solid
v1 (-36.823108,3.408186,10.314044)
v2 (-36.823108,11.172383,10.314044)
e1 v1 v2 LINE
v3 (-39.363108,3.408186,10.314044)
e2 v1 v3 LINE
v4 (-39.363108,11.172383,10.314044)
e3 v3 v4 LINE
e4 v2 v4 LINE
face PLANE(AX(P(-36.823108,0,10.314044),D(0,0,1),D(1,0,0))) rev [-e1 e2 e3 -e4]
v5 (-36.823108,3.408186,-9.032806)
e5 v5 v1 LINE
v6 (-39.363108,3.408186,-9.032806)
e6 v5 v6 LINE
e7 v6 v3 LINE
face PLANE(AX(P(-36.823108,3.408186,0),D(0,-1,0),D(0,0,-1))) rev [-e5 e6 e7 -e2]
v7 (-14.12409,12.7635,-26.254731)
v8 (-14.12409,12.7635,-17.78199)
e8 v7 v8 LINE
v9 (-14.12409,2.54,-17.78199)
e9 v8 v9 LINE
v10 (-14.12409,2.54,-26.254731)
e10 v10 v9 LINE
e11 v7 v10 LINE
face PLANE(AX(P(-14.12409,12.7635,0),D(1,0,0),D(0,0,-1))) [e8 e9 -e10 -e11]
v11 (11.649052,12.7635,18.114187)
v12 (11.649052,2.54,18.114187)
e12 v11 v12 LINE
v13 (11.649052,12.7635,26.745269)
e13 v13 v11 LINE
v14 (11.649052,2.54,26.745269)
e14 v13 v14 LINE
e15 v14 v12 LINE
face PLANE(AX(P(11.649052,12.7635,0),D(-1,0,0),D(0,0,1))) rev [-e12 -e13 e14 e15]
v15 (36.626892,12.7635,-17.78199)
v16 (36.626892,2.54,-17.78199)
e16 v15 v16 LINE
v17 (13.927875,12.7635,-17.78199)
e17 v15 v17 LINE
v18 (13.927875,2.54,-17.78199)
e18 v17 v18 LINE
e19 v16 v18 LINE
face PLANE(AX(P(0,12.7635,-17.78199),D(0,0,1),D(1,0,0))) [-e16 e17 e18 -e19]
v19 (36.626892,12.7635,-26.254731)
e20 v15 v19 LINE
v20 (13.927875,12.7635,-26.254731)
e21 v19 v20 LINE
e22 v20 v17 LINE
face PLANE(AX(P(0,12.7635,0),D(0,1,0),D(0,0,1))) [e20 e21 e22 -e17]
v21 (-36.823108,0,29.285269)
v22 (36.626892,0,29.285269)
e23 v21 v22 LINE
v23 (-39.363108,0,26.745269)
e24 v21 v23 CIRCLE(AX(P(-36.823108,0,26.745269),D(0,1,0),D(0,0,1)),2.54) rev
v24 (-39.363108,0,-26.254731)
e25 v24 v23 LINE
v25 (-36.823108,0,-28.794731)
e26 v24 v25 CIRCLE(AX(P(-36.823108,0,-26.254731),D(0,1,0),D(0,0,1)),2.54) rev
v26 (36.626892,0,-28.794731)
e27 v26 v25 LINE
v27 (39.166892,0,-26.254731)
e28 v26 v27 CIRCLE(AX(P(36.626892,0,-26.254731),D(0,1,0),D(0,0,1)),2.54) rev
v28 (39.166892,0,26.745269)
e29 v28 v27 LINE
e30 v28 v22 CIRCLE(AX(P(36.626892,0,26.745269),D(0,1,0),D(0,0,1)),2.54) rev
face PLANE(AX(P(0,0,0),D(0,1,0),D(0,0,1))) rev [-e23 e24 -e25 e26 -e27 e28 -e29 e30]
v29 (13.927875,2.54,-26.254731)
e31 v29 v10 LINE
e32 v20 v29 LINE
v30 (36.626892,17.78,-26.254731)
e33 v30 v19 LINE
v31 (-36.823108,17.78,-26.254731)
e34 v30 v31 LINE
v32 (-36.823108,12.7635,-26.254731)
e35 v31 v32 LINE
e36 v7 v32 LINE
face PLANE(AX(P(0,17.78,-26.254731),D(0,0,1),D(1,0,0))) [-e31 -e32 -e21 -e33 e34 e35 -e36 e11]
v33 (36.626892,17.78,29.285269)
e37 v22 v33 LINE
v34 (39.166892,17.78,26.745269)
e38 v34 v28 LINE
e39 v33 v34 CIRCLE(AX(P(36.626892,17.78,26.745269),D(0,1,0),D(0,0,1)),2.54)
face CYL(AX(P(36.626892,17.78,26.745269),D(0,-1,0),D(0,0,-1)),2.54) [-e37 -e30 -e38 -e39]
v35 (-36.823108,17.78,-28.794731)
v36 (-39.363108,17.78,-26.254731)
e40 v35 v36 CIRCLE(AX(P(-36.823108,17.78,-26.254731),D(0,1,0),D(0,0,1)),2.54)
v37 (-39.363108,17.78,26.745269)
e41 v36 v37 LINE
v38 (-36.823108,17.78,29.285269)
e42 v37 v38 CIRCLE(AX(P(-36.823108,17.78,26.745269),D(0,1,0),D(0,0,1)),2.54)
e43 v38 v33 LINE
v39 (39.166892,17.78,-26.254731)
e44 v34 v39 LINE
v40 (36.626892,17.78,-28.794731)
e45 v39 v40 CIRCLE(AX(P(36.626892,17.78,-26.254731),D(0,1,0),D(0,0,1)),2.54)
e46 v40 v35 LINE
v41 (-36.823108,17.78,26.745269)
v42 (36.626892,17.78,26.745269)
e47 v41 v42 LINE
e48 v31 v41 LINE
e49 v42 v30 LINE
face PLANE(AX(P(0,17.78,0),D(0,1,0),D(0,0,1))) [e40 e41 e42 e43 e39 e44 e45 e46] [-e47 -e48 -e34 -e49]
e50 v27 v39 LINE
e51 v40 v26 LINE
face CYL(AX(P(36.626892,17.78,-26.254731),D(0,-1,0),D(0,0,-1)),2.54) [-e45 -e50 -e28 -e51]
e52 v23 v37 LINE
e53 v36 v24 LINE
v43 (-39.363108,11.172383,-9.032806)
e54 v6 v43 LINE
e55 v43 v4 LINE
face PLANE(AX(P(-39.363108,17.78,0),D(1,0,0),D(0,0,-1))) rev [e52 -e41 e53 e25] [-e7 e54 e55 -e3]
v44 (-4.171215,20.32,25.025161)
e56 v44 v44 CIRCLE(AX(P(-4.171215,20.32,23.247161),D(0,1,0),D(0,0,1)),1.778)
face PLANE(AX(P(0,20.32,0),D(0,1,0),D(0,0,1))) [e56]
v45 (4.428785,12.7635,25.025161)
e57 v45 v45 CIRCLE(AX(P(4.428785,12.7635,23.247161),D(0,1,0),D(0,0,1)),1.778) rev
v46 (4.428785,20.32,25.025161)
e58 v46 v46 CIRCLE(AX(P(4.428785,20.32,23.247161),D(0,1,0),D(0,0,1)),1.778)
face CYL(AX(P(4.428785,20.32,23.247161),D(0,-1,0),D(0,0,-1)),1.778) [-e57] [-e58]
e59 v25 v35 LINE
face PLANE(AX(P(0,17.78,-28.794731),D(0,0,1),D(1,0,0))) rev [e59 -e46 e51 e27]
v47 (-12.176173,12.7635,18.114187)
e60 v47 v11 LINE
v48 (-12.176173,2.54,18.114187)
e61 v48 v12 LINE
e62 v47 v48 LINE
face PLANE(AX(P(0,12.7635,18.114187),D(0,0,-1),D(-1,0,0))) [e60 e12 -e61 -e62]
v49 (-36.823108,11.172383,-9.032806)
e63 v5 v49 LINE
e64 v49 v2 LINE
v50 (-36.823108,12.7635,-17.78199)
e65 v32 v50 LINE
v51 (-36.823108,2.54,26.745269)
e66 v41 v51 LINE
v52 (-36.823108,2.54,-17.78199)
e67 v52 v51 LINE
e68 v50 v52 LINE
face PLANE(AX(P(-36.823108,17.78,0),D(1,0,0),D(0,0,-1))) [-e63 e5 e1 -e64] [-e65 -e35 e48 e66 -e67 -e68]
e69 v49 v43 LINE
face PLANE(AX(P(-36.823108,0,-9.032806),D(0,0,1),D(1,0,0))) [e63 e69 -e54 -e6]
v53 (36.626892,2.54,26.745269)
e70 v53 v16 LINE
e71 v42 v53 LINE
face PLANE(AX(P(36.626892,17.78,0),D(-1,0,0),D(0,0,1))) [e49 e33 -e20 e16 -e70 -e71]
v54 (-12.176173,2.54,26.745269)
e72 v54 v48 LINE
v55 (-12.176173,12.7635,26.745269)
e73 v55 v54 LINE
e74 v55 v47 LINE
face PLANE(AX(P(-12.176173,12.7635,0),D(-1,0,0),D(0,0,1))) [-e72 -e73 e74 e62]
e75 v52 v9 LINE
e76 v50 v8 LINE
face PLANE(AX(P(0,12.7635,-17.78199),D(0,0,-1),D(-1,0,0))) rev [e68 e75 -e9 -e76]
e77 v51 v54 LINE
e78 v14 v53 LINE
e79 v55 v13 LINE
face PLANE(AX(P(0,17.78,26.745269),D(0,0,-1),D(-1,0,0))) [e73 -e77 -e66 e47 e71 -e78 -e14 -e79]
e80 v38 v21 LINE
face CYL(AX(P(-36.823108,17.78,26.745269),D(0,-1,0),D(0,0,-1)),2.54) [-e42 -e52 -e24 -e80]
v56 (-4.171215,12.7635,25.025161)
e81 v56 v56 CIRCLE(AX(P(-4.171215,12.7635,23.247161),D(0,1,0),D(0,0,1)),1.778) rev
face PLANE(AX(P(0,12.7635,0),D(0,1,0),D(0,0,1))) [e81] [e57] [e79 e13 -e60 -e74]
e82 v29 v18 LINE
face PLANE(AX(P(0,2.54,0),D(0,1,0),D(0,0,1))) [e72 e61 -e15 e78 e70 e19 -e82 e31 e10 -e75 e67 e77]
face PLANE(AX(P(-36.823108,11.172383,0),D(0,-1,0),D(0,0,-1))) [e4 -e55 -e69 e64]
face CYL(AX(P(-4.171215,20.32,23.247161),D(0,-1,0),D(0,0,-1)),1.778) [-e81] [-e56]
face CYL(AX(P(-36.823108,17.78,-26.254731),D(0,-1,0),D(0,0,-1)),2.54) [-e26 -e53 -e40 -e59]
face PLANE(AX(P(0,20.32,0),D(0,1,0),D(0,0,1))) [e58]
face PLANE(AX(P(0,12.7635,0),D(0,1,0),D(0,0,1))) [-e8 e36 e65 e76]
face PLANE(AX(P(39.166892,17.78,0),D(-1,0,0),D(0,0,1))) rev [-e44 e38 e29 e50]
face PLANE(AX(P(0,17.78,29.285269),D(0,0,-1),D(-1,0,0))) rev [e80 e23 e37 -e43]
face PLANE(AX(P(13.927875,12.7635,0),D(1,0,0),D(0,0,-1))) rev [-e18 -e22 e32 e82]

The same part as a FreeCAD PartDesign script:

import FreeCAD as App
import Part
import Sketcher

V = App.Vector
Q = App.Units.Quantity


def edges_at(feature, points):
    """Names of the edges that pass closest to the given points."""
    edges = feature.Shape.Edges
    near = lambda p: min(range(len(edges)), key=lambda i: edges[i].distToShape(Part.Vertex(*p))[0])
    return sorted({f"Edge{near(p) + 1}" for p in points})

doc = App.newDocument("Part")
body = doc.addObject("PartDesign::Body", "Body")

sketch1 = body.newObject("Sketcher::SketchObject", "Sketch")
sketch1.AttachmentSupport = (doc.getObject("XZ_Plane"), [""])
sketch1.MapMode = "FlatFace"
sketch1.addGeometry([
    Part.LineSegment(V(14, -18, 0), V(14, -26, 0)),
    Part.LineSegment(V(14, -26, 0), V(-14, -26, 0)),
    Part.LineSegment(V(-14, -26, 0), V(-14, -18, 0)),
    Part.LineSegment(V(-14, -18, 0), V(-37, -18, 0)),
    Part.LineSegment(V(-37, -18, 0), V(-37, 27, 0)),
    Part.LineSegment(V(-37, 27, 0), V(-12, 27, 0)),
    Part.LineSegment(V(-12, 27, 0), V(-12, 18, 0)),
    Part.LineSegment(V(-12, 18, 0), V(12, 18, 0)),
    Part.LineSegment(V(12, 18, 0), V(12, 27, 0)),
    Part.LineSegment(V(12, 27, 0), V(37, 27, 0)),
    Part.LineSegment(V(37, 27, 0), V(37, -18, 0)),
    Part.LineSegment(V(37, -18, 0), V(14, -18, 0)),
], False)
sketch1.addConstraint([
    Sketcher.Constraint("Coincident", 0, 2, 1, 1),
    Sketcher.Constraint("Coincident", 1, 2, 2, 1),
    Sketcher.Constraint("Coincident", 2, 2, 3, 1),
    Sketcher.Constraint("Coincident", 3, 2, 4, 1),
    Sketcher.Constraint("Coincident", 4, 2, 5, 1),
    Sketcher.Constraint("Coincident", 5, 2, 6, 1),
    Sketcher.Constraint("Coincident", 6, 2, 7, 1),
    Sketcher.Constraint("Coincident", 7, 2, 8, 1),
    Sketcher.Constraint("Coincident", 8, 2, 9, 1),
    Sketcher.Constraint("Coincident", 9, 2, 10, 1),
    Sketcher.Constraint("Coincident", 10, 2, 11, 1),
    Sketcher.Constraint("Coincident", 11, 2, 0, 1),
    Sketcher.Constraint("Vertical", 0),
    Sketcher.Constraint("Horizontal", 1),
    Sketcher.Constraint("Vertical", 2),
    Sketcher.Constraint("Horizontal", 3),
    Sketcher.Constraint("Vertical", 4),
    Sketcher.Constraint("Horizontal", 5),
    Sketcher.Constraint("Vertical", 6),
    Sketcher.Constraint("Horizontal", 7),
    Sketcher.Constraint("Vertical", 8),
    Sketcher.Constraint("Horizontal", 9),
    Sketcher.Constraint("Vertical", 10),
    Sketcher.Constraint("Horizontal", 11),
    Sketcher.Constraint("Horizontal", 5, 2, 8, 2),
    Sketcher.Constraint("Horizontal", 3, 2, 10, 2),
    Sketcher.Constraint("Equal", 3, 11),
    Sketcher.Constraint("DistanceX", 9, 1, 9, 2, 24.977841),
    Sketcher.Constraint("DistanceY", 0, 2, 0, 1, 8.47274),
    Sketcher.Constraint("DistanceY", 4, 1, 4, 2, 44.52726),
    Sketcher.Constraint("DistanceY", 6, 2, 6, 1, 8.631082),
    Sketcher.Constraint("DistanceX", 1, 2, 1, 1, 28.051965),
    Sketcher.Constraint("DistanceX", 3, 2, 3, 1, 22.699018),
    Sketcher.Constraint("DistanceX", 5, 1, 5, 2, 24.646935),
    Sketcher.Constraint("DistanceY", 0, 2, -1, 1, 26.254731),
    Sketcher.Constraint("DistanceX", 1, 2, -1, 1, 14.12409),
])
pad1 = body.newObject("PartDesign::Pad", "Pad")
pad1.Profile = sketch1
pad1.Length = Q("0.1 in")
pad1.Reversed = True

sketch2 = body.newObject("Sketcher::SketchObject", "Sketch001")
sketch2.AttachmentSupport = (doc.getObject("XZ_Plane"), [""])
sketch2.MapMode = "FlatFace"
sketch2.addGeometry([
    Part.LineSegment(V(-39, -29, 0), V(-39, 29, 0)),
    Part.LineSegment(V(-39, 29, 0), V(39, 29, 0)),
    Part.LineSegment(V(39, 29, 0), V(39, -29, 0)),
    Part.LineSegment(V(39, -29, 0), V(-39, -29, 0)),
    Part.LineSegment(V(37, 27, 0), V(-37, 27, 0)),
    Part.LineSegment(V(-37, 27, 0), V(-37, -26, 0)),
    Part.LineSegment(V(-37, -26, 0), V(37, -26, 0)),
    Part.LineSegment(V(37, -26, 0), V(37, 27, 0)),
], False)
sketch2.addConstraint([
    Sketcher.Constraint("Coincident", 0, 2, 1, 1),
    Sketcher.Constraint("Coincident", 1, 2, 2, 1),
    Sketcher.Constraint("Coincident", 2, 2, 3, 1),
    Sketcher.Constraint("Coincident", 3, 2, 0, 1),
    Sketcher.Constraint("Coincident", 4, 2, 5, 1),
    Sketcher.Constraint("Coincident", 5, 2, 6, 1),
    Sketcher.Constraint("Coincident", 6, 2, 7, 1),
    Sketcher.Constraint("Coincident", 7, 2, 4, 1),
    Sketcher.Constraint("Vertical", 0),
    Sketcher.Constraint("Horizontal", 1),
    Sketcher.Constraint("Vertical", 2),
    Sketcher.Constraint("Horizontal", 3),
    Sketcher.Constraint("Horizontal", 4),
    Sketcher.Constraint("Vertical", 5),
    Sketcher.Constraint("Horizontal", 6),
    Sketcher.Constraint("Vertical", 7),
    Sketcher.Constraint("DistanceX", 0, 2, 4, 2, Q("0.1 in")),
    Sketcher.Constraint("DistanceY", 4, 2, 0, 2, Q("0.1 in")),
    Sketcher.Constraint("DistanceY", 3, 2, 5, 2, Q("0.1 in")),
    Sketcher.Constraint("DistanceX", 6, 2, 2, 2, Q("0.1 in")),
    Sketcher.Constraint("DistanceX", 1, 1, 1, 2, 78.53),
    Sketcher.Constraint("DistanceY", 0, 1, 0, 2, 58.08),
    Sketcher.Constraint("DistanceY", -1, 1, 0, 2, 29.285269),
    Sketcher.Constraint("DistanceX", 0, 2, -1, 1, 39.363108),
])
pad2 = body.newObject("PartDesign::Pad", "Pad001")
pad2.Profile = sketch2
pad2.Length = Q("0.7 in")
pad2.Reversed = True
body2 = doc.addObject("PartDesign::Body", "Body001")

sketch3 = body2.newObject("Sketcher::SketchObject", "Sketch002")
sketch3.AttachmentSupport = (doc.getObject("XZ_Plane001"), [""])
sketch3.MapMode = "FlatFace"
sketch3.addGeometry(Part.Circle(V(-4.2, 23.2, 0), V(0, 0, 1), 1.8), False)
sketch3.addConstraint([
    Sketcher.Constraint("Diameter", 0, Q("0.14 in")),
    Sketcher.Constraint("DistanceY", -1, 1, 0, 3, 23.247161),
    Sketcher.Constraint("DistanceX", 0, 3, -1, 1, 4.171215),
])
pad3 = body2.newObject("PartDesign::Pad", "Pad002")
pad3.Profile = sketch3
pad3.Length = Q("0.8 in")
pad3.Reversed = True
body3 = doc.addObject("PartDesign::Body", "Body002")

sketch4 = body3.newObject("Sketcher::SketchObject", "Sketch003")
sketch4.AttachmentSupport = (doc.getObject("XZ_Plane002"), [""])
sketch4.MapMode = "FlatFace"
sketch4.addGeometry(Part.Circle(V(4.4, 23.2, 0), V(0, 0, 1), 1.8), False)
sketch4.addConstraint([
    Sketcher.Constraint("Diameter", 0, Q("0.14 in")),
    Sketcher.Constraint("DistanceY", -1, 1, 0, 3, 23.247161),
    Sketcher.Constraint("DistanceX", -1, 1, 0, 3, 4.428785),
])
pad4 = body3.newObject("PartDesign::Pad", "Pad003")
pad4.Profile = sketch4
pad4.Length = Q("0.8 in")
pad4.Reversed = True
body.AllowCompound = True
doc.recompute()

boolean = body.newObject("PartDesign::Boolean", "Boolean")
boolean.Type = "Fuse"
boolean.addObjects([body2])
doc.recompute()

boolean2 = body.newObject("PartDesign::Boolean", "Boolean001")
boolean2.Type = "Fuse"
boolean2.addObjects([body3])

sketch5 = body.newObject("Sketcher::SketchObject", "Sketch004")
sketch5.AttachmentSupport = (doc.getObject("XZ_Plane"), [""])
sketch5.MapMode = "FlatFace"
sketch5.addGeometry([
    Part.LineSegment(V(13.9, -26.3, 0), V(13.9, -17.8, 0)),
    Part.LineSegment(V(13.9, -17.8, 0), V(36.6, -17.8, 0)),
    Part.LineSegment(V(36.6, -17.8, 0), V(36.6, -26.3, 0)),
    Part.LineSegment(V(36.6, -26.3, 0), V(13.9, -26.3, 0)),
    Part.LineSegment(V(-36.8, -26.3, 0), V(-36.8, -17.8, 0)),
    Part.LineSegment(V(-36.8, -17.8, 0), V(-14.1, -17.8, 0)),
    Part.LineSegment(V(-14.1, -17.8, 0), V(-14.1, -26.3, 0)),
    Part.LineSegment(V(-14.1, -26.3, 0), V(-36.8, -26.3, 0)),
    Part.LineSegment(V(-12.2, 18.1, 0), V(-12.2, 26.7, 0)),
    Part.LineSegment(V(-12.2, 26.7, 0), V(11.6, 26.7, 0)),
    Part.LineSegment(V(11.6, 26.7, 0), V(11.6, 18.1, 0)),
    Part.LineSegment(V(11.6, 18.1, 0), V(-12.2, 18.1, 0)),
    Part.Circle(V(-4.2, 23.2, 0), V(0, 0, 1), 1.8),
    Part.Circle(V(4.4, 23.2, 0), V(0, 0, 1), 1.8),
], False)
sketch5.addConstraint([
    Sketcher.Constraint("Coincident", 0, 2, 1, 1),
    Sketcher.Constraint("Coincident", 1, 2, 2, 1),
    Sketcher.Constraint("Coincident", 2, 2, 3, 1),
    Sketcher.Constraint("Coincident", 3, 2, 0, 1),
    Sketcher.Constraint("Coincident", 4, 2, 5, 1),
    Sketcher.Constraint("Coincident", 5, 2, 6, 1),
    Sketcher.Constraint("Coincident", 6, 2, 7, 1),
    Sketcher.Constraint("Coincident", 7, 2, 4, 1),
    Sketcher.Constraint("Coincident", 8, 2, 9, 1),
    Sketcher.Constraint("Coincident", 9, 2, 10, 1),
    Sketcher.Constraint("Coincident", 10, 2, 11, 1),
    Sketcher.Constraint("Coincident", 11, 2, 8, 1),
    Sketcher.Constraint("Vertical", 0),
    Sketcher.Constraint("Horizontal", 1),
    Sketcher.Constraint("Vertical", 2),
    Sketcher.Constraint("Horizontal", 3),
    Sketcher.Constraint("Vertical", 4),
    Sketcher.Constraint("Horizontal", 5),
    Sketcher.Constraint("Vertical", 6),
    Sketcher.Constraint("Horizontal", 7),
    Sketcher.Constraint("Vertical", 8),
    Sketcher.Constraint("Horizontal", 9),
    Sketcher.Constraint("Vertical", 10),
    Sketcher.Constraint("Horizontal", 11),
    Sketcher.Constraint("Equal", 12, 13),
    Sketcher.Constraint("Horizontal", 12, 3, 13, 3),
    Sketcher.Constraint("Horizontal", 1, 2, 4, 2),
    Sketcher.Constraint("Horizontal", 3, 2, 6, 2),
    Sketcher.Constraint("Equal", 3, 5),
    Sketcher.Constraint("Diameter", 12, Q("0.14 in")),
    Sketcher.Constraint("DistanceY", 0, 1, 0, 2, 8.47274),
    Sketcher.Constraint("DistanceY", 8, 1, 8, 2, 8.631082),
    Sketcher.Constraint("DistanceX", 12, 3, 13, 3, 8.6),
    Sketcher.Constraint("DistanceX", 4, 2, 1, 2, 73.45),
    Sketcher.Constraint("DistanceX", 1, 1, 1, 2, 22.699018),
    Sketcher.Constraint("DistanceX", 9, 1, 9, 2, 23.825224),
    Sketcher.Constraint("DistanceY", -1, 1, 12, 3, 23.247161),
    Sketcher.Constraint("DistanceY", 0, 2, -1, 1, 17.78199),
    Sketcher.Constraint("DistanceX", 5, 2, -1, 1, 14.12409),
    Sketcher.Constraint("DistanceY", -1, 1, 8, 2, 26.745269),
    Sketcher.Constraint("DistanceX", -1, 1, 9, 2, 11.649052),
    Sketcher.Constraint("DistanceX", 13, 3, 0, 2, 9.49909),
])
pad5 = body.newObject("PartDesign::Pad", "Pad004")
pad5.Profile = sketch5
pad5.Length = Q("0.5025 in")
pad5.Reversed = True

sketch6 = body.newObject("Sketcher::SketchObject", "Sketch005")
sketch6.AttachmentSupport = (doc.getObject("YZ_Plane"), [""])
sketch6.MapMode = "FlatFace"
sketch6.AttachmentOffset = App.Placement(V(0, 0, -39.363108), App.Rotation())
sketch6.addGeometry([
    Part.LineSegment(V(11, -9, 0), V(3, -9, 0)),
    Part.LineSegment(V(3, -9, 0), V(3, 10, 0)),
    Part.LineSegment(V(3, 10, 0), V(11, 10, 0)),
    Part.LineSegment(V(11, 10, 0), V(11, -9, 0)),
], False)
sketch6.addConstraint([
    Sketcher.Constraint("Coincident", 0, 2, 1, 1),
    Sketcher.Constraint("Coincident", 1, 2, 2, 1),
    Sketcher.Constraint("Coincident", 2, 2, 3, 1),
    Sketcher.Constraint("Coincident", 3, 2, 0, 1),
    Sketcher.Constraint("Horizontal", 0),
    Sketcher.Constraint("Vertical", 1),
    Sketcher.Constraint("Horizontal", 2),
    Sketcher.Constraint("Vertical", 3),
    Sketcher.Constraint("DistanceY", 1, 1, 1, 2, 19.346851),
    Sketcher.Constraint("DistanceX", 0, 2, 0, 1, 7.764197),
    Sketcher.Constraint("DistanceX", -1, 1, 0, 2, 3.408186),
    Sketcher.Constraint("DistanceY", 0, 2, -1, 1, 9.032806),
])
pocket1 = body.newObject("PartDesign::Pocket", "Pocket")
pocket1.Profile = sketch6
pocket1.Length = Q("0.1 in")
pocket1.Reversed = True
doc.recompute()

fillet = body.newObject("PartDesign::Fillet", "Fillet")
fillet.Base = (pocket1, edges_at(pocket1, [
    (-39.363, 8.89, 29.285),
    (39.167, 8.89, 29.285),
    (39.167, 8.89, -28.795),
    (-39.363, 8.89, -28.795),
]))
fillet.Radius = Q("0.1 in")

doc.recompute()
